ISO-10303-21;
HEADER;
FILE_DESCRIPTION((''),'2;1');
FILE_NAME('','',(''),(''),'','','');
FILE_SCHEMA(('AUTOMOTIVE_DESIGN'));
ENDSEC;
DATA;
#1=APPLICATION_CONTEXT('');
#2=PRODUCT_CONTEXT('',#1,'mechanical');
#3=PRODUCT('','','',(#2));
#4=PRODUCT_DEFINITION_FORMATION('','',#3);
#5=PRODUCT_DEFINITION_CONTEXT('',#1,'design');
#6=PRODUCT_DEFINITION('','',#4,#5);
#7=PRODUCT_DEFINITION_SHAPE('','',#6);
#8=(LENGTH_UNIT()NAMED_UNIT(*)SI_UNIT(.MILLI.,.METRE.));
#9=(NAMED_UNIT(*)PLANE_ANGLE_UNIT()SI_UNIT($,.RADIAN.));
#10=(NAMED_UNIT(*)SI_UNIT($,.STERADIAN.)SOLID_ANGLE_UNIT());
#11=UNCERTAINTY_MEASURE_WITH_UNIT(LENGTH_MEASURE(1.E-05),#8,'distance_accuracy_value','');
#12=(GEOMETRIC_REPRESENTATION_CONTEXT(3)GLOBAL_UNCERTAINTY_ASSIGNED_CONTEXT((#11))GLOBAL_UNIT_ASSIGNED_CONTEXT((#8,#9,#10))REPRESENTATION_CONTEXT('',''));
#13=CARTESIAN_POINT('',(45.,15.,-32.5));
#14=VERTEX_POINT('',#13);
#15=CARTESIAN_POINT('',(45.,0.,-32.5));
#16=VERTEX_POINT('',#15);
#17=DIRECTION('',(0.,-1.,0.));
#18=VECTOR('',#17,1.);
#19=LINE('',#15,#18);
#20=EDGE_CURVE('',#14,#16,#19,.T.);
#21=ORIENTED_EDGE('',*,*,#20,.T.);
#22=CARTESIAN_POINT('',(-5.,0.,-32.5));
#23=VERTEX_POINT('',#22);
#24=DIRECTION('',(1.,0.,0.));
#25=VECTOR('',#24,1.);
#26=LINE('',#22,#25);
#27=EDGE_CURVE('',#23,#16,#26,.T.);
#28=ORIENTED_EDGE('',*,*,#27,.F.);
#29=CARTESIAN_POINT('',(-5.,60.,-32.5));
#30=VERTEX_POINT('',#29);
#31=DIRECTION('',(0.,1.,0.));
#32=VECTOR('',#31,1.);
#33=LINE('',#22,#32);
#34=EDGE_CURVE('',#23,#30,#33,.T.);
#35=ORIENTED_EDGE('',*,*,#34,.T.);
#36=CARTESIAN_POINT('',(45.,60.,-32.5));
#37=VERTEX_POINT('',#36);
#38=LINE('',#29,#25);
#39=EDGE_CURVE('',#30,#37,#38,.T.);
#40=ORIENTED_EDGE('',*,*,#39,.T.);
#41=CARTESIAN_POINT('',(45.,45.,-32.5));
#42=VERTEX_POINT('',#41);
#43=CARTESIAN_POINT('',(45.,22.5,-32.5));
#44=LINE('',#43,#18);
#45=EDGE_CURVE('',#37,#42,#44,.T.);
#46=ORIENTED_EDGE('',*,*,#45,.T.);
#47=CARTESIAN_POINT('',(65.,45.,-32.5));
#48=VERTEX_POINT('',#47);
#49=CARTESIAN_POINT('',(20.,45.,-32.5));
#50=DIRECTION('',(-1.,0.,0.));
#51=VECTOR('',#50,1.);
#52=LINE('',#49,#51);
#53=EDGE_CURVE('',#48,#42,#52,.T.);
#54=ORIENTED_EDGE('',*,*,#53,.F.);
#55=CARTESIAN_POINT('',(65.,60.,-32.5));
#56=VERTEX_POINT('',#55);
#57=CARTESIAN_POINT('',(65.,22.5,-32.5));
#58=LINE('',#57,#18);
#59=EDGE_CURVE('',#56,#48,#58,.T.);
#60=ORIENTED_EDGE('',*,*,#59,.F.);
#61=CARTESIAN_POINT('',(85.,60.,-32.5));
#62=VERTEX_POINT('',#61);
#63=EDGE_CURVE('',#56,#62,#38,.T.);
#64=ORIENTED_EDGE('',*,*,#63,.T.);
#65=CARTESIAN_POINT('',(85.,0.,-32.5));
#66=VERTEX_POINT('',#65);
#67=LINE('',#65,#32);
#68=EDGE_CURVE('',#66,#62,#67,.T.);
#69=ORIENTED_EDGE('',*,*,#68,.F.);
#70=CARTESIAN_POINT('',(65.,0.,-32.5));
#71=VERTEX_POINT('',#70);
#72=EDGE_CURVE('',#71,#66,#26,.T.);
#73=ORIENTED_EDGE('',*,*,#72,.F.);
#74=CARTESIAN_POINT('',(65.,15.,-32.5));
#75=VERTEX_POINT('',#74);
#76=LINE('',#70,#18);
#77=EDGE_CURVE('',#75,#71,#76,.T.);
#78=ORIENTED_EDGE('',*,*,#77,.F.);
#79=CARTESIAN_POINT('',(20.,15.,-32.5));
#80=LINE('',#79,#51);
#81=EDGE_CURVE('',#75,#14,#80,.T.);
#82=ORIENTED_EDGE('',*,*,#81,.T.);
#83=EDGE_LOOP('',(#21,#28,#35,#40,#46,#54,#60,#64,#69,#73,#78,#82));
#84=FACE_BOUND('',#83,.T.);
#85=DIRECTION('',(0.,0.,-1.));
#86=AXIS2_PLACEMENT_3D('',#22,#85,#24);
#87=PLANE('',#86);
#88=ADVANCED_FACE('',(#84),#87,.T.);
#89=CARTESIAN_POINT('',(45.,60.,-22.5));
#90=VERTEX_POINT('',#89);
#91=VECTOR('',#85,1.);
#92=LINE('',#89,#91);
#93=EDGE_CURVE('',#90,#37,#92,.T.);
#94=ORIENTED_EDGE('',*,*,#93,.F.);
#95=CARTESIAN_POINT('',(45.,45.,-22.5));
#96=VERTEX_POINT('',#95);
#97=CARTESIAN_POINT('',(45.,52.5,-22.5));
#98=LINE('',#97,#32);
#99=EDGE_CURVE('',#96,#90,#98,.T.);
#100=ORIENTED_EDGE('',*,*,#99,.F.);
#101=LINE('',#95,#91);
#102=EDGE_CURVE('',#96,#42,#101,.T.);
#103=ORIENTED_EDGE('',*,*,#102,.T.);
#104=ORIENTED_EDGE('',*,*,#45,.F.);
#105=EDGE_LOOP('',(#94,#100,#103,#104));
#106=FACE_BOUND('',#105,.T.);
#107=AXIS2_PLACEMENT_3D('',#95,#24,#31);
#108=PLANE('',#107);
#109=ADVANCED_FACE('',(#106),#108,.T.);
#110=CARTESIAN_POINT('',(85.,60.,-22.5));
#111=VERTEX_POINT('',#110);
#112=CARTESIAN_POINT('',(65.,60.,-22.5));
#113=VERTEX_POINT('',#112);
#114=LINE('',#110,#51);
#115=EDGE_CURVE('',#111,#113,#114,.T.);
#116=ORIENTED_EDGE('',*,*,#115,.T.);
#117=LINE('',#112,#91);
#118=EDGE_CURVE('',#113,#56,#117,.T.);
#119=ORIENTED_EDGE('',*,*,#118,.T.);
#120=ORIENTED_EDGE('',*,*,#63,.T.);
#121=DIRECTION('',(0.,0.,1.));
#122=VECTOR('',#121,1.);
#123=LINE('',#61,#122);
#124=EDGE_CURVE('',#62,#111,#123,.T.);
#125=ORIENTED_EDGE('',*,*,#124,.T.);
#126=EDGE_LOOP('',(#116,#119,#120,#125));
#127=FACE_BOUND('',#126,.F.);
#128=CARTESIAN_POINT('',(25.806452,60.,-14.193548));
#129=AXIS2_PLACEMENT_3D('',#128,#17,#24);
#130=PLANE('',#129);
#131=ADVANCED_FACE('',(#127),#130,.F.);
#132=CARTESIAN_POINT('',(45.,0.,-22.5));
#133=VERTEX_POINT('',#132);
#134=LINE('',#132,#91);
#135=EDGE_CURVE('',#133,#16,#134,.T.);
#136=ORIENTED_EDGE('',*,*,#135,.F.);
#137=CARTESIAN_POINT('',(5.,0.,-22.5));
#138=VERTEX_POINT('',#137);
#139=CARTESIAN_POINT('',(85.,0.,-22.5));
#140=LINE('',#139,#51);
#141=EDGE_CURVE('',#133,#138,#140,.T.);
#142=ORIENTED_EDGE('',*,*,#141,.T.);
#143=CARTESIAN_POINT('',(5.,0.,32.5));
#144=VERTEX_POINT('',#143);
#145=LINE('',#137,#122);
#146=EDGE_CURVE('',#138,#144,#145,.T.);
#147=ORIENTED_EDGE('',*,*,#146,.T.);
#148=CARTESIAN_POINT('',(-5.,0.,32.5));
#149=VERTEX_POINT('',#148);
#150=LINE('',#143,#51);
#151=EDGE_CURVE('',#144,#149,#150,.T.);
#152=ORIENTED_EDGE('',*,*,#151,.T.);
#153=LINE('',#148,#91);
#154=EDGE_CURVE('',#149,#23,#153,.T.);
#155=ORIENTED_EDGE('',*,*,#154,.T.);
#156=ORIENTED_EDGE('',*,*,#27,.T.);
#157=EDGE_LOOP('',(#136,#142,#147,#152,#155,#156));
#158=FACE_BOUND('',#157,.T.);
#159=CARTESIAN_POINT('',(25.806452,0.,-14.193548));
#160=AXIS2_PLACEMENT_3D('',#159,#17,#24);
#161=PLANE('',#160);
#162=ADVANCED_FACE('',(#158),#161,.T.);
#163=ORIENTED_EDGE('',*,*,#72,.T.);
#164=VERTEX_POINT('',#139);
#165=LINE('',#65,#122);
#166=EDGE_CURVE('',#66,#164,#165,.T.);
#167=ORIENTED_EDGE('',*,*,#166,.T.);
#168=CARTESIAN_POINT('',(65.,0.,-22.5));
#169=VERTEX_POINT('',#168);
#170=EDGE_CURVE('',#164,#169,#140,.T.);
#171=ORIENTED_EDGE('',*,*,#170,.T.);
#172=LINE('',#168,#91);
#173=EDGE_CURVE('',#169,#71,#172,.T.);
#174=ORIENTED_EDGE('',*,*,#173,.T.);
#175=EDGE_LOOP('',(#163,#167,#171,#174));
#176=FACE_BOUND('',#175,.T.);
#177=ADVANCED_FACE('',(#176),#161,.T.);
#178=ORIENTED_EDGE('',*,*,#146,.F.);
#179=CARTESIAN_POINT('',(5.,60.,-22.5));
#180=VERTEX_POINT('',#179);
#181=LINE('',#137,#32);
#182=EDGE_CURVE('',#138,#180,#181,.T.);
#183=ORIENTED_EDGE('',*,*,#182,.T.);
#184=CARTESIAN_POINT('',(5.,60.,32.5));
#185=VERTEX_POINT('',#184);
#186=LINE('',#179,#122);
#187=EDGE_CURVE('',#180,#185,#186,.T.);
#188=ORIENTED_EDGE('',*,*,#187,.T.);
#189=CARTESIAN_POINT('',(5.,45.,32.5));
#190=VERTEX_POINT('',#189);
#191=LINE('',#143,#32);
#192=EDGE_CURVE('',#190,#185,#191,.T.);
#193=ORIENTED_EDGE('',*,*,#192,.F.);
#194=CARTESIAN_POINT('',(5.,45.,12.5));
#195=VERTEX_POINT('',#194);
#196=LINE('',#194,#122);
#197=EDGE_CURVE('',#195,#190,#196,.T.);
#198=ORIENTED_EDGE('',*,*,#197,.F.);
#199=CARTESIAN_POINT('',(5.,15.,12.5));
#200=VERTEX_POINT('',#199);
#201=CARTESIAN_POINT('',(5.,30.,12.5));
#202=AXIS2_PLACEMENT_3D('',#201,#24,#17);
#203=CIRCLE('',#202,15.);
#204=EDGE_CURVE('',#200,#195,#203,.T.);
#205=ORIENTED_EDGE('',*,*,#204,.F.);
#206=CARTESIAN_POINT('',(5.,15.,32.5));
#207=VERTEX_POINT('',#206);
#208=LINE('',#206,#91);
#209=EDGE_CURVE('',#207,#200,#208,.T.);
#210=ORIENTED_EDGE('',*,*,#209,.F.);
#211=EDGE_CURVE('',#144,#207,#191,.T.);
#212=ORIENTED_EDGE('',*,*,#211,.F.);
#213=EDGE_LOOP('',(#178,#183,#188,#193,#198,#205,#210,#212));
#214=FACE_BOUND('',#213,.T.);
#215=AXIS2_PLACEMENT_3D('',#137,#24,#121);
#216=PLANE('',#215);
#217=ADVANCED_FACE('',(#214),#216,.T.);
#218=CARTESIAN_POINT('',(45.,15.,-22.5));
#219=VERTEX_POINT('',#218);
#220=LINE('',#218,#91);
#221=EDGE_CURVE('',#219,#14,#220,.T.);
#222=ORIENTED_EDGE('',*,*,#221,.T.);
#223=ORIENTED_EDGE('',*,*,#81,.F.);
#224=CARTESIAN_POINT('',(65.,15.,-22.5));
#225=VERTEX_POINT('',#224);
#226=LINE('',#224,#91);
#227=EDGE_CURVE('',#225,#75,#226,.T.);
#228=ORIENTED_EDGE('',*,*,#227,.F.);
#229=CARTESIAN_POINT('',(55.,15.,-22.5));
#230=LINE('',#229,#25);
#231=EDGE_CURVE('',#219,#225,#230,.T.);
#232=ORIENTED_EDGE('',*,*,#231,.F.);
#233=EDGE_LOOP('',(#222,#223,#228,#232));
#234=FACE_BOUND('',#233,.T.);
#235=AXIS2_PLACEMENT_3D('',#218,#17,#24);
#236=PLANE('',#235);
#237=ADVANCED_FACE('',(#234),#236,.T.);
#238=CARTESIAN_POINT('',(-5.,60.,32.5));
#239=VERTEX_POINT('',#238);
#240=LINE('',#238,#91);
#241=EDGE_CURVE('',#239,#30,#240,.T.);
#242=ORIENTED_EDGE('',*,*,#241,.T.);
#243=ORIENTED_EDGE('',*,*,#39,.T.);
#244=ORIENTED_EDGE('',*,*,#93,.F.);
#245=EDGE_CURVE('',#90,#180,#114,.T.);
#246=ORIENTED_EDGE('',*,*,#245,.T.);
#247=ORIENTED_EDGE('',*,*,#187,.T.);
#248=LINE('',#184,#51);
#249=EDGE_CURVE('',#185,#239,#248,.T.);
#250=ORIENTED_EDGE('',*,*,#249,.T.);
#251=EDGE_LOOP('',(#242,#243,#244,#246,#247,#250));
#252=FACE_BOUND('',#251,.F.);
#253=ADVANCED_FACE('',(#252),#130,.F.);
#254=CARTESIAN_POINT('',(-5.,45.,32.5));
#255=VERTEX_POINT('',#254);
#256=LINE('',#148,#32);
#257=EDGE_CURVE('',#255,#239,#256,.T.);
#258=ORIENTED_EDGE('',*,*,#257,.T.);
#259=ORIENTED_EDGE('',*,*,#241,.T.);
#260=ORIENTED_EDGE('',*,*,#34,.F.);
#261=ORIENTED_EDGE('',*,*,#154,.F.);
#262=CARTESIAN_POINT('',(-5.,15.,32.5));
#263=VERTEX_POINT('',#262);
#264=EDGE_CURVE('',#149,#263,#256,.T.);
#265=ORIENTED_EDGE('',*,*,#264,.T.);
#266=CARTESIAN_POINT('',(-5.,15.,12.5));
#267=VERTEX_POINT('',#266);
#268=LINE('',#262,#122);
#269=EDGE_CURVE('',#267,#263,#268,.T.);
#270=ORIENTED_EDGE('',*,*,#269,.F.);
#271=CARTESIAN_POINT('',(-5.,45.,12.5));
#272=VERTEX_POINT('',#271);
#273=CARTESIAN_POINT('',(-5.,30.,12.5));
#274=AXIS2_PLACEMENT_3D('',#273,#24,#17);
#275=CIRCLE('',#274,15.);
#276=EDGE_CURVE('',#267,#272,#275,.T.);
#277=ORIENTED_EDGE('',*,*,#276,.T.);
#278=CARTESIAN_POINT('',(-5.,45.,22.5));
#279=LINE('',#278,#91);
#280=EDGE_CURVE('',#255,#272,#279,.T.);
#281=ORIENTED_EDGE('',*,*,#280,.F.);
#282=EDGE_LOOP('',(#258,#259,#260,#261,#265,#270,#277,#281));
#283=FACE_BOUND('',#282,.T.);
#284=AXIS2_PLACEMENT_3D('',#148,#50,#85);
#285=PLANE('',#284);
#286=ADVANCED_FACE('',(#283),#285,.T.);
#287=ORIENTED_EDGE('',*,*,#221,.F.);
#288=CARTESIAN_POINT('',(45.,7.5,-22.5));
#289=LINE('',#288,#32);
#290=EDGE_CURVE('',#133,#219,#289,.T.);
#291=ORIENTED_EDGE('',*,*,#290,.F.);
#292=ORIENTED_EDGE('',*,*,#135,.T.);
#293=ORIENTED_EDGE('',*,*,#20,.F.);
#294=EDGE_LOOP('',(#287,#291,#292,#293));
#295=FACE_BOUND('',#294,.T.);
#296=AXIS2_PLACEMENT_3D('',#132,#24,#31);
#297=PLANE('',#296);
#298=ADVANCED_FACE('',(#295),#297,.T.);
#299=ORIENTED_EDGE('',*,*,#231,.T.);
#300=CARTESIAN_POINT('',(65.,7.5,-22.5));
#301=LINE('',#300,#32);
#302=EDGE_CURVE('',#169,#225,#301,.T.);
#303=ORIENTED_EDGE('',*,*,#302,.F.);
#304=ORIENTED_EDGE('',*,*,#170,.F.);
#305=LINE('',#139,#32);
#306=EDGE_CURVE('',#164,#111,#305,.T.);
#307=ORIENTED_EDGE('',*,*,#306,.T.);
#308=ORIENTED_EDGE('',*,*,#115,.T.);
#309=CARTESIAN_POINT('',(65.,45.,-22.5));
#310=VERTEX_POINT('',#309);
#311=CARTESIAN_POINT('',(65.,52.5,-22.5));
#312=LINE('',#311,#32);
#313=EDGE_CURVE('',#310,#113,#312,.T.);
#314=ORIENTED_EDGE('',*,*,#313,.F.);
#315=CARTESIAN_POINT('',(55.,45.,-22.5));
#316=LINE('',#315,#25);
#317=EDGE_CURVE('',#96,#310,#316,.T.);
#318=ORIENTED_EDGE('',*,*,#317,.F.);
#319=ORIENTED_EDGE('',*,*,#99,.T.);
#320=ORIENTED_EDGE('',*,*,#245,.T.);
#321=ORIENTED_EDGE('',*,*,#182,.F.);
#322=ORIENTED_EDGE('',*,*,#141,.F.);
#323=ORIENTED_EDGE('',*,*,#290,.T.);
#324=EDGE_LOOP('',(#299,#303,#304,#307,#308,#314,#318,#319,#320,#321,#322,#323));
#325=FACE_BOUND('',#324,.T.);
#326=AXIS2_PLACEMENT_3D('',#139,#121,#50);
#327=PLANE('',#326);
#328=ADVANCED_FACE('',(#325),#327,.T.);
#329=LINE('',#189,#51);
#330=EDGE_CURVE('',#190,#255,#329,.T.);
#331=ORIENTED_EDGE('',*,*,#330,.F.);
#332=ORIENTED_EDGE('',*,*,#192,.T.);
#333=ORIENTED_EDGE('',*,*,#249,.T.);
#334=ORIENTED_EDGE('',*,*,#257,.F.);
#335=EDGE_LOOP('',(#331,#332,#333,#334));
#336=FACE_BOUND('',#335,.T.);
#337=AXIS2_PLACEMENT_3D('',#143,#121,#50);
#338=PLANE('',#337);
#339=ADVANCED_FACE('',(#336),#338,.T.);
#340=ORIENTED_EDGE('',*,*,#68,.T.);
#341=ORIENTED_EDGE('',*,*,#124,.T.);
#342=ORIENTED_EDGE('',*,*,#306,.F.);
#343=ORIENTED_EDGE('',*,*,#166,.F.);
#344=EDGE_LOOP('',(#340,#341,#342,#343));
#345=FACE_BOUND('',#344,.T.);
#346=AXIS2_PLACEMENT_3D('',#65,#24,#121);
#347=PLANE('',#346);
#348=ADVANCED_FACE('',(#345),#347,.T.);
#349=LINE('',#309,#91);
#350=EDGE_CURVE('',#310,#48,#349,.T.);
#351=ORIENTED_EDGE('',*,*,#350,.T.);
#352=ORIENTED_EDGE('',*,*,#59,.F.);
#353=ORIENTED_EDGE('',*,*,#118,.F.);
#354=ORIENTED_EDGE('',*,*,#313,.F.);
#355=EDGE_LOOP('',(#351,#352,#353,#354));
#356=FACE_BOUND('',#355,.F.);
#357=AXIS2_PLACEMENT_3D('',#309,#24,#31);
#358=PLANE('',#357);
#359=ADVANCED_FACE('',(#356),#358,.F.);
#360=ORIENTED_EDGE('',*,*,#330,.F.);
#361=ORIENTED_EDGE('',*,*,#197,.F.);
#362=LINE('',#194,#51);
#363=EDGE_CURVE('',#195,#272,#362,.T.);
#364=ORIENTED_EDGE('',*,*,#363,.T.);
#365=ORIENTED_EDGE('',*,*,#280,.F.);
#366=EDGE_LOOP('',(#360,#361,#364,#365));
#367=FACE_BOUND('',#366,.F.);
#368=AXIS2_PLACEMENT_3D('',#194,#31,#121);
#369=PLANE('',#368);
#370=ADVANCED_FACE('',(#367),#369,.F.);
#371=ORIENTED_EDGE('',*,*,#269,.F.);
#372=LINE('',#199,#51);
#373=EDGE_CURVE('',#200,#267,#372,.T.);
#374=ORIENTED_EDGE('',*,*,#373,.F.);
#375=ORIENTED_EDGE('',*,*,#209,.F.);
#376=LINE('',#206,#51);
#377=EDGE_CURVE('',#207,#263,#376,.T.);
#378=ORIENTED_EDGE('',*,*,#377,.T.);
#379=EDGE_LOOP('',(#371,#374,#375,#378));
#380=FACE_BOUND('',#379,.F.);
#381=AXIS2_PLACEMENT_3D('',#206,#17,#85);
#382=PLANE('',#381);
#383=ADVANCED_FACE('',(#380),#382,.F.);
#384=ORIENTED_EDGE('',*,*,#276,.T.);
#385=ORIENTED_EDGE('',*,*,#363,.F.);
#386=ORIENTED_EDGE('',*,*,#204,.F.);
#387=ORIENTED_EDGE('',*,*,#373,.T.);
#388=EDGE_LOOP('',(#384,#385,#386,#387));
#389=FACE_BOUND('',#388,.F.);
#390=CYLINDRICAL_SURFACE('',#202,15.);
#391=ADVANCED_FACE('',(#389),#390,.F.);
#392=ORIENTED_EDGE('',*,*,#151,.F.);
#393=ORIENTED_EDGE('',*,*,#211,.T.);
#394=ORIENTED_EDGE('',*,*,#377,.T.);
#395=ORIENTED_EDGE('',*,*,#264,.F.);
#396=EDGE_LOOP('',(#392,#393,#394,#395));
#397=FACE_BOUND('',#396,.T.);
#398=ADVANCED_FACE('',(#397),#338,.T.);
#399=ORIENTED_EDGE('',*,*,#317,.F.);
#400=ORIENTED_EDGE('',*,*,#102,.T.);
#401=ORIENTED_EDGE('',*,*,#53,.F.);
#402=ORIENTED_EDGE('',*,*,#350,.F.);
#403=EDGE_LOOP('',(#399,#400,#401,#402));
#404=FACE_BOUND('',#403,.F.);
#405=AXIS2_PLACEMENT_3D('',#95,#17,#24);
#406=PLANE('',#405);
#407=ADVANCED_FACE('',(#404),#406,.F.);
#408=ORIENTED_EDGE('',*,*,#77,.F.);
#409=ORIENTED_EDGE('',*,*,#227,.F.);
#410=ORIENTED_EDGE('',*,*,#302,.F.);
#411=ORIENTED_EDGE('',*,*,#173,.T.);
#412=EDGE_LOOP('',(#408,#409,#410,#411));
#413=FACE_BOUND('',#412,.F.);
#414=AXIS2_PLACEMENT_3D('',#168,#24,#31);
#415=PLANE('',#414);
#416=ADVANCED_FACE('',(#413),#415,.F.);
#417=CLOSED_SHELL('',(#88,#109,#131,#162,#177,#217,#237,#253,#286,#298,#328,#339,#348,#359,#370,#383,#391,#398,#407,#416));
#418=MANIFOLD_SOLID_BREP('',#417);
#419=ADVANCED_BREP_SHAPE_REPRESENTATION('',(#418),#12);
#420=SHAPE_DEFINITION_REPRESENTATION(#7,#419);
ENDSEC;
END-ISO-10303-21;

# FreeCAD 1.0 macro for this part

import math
import FreeCAD as App
import Part
import Sketcher

V = App.Vector
Q = App.Units.Quantity


def add_polygon(sketch, points):
    """Adds a closed chain of lines whose ends are joined by coincident constraints."""
    first, n = sketch.GeometryCount, len(points)
    for a, b in zip(points, points[1:] + points[:1]):
        sketch.addGeometry(Part.LineSegment(App.Vector(*a, 0), App.Vector(*b, 0)), False)
    for i in range(n):
        sketch.addConstraint(Sketcher.Constraint("Coincident", first + i, 2, first + (i + 1) % n, 1))

doc = App.newDocument("Part")
body = doc.addObject("PartDesign::Body", "Body")

# Sketch on XZ plane
sketch1 = body.newObject("Sketcher::SketchObject", "Sketch")
sketch1.AttachmentSupport = (doc.getObject("XZ_Plane"), [""])
sketch1.MapMode = "FlatFace"
add_polygon(sketch1, [(5, -22), (5, 32), (-5, 32), (-5, -32), (85, -32), (85, -22)])  # lines 0-5
sketch1.addConstraint([
    Sketcher.Constraint("Vertical", 0),
    Sketcher.Constraint("Horizontal", 1),
    Sketcher.Constraint("Vertical", 2),
    Sketcher.Constraint("Horizontal", 3),
    Sketcher.Constraint("Vertical", 4),
    Sketcher.Constraint("Horizontal", 5),
    Sketcher.Constraint("Symmetric", 0, 2, 2, 2, -1, 1),
    Sketcher.Constraint("Equal", 1, 4),
    Sketcher.Constraint("DistanceX", 1, 2, 1, 1, Q("10 mm")),
    Sketcher.Constraint("DistanceX", 3, 1, 3, 2, Q("90 mm")),
    Sketcher.Constraint("DistanceY", 0, 1, 0, 2, Q("55 mm")),
])
pad1 = body.newObject("PartDesign::Pad", "Pad")
pad1.Profile = sketch1
pad1.Length = 60
pad1.Reversed = True

# Sketch on XY plane
sketch2 = body.newObject("Sketcher::SketchObject", "Sketch001")
sketch2.AttachmentSupport = (doc.getObject("XY_Plane"), [""])
sketch2.MapMode = "FlatFace"
sketch2.AttachmentOffset = App.Placement(V(0, 0, -22.5), App.Rotation())
add_polygon(sketch2, [(45, 15), (45, 0), (65, 0), (65, 15)])  # lines 0-3
add_polygon(sketch2, [(45, 60), (45, 45), (65, 45), (65, 60)])  # lines 4-7
sketch2.addConstraint([
    Sketcher.Constraint("Vertical", 0),
    Sketcher.Constraint("Horizontal", 1),
    Sketcher.Constraint("Vertical", 2),
    Sketcher.Constraint("Horizontal", 3),
    Sketcher.Constraint("Vertical", 4),
    Sketcher.Constraint("Horizontal", 5),
    Sketcher.Constraint("Vertical", 6),
    Sketcher.Constraint("Horizontal", 7),
    Sketcher.Constraint("PointOnObject", 0, 2, -1),
    Sketcher.Constraint("Vertical", 3, 2, 4, 2),
    Sketcher.Constraint("Vertical", 2, 2, 5, 2),
    Sketcher.Constraint("Equal", 2, 4),
    Sketcher.Constraint("DistanceX", 1, 1, 1, 2, Q("20 mm")),
    Sketcher.Constraint("DistanceY", 0, 2, 0, 1, Q("15 mm")),
    Sketcher.Constraint("DistanceX", -1, 1, 0, 2, Q("45 mm")),
    Sketcher.Constraint("DistanceY", -1, 1, 4, 2, Q("45 mm")),
])
pocket1 = body.newObject("PartDesign::Pocket", "Pocket")
pocket1.Profile = sketch2
pocket1.Length = 25

# Sketch on YZ plane
sketch3 = body.newObject("Sketcher::SketchObject", "Sketch002")
sketch3.AttachmentSupport = (doc.getObject("YZ_Plane"), [""])
sketch3.MapMode = "FlatFace"
sketch3.AttachmentOffset = App.Placement(V(0, 0, 5), App.Rotation())
sketch3.addGeometry([
    Part.LineSegment(V(15, 32, 0), V(15, 12, 0)),
    Part.ArcOfCircle(Part.Circle(V(30, 12, 0), V(0, 0, 1), 15), math.radians(180), math.radians(360)),
    Part.LineSegment(V(45, 12, 0), V(45, 32, 0)),
    Part.LineSegment(V(45, 32, 0), V(15, 32, 0)),
], False)
sketch3.addConstraint([
    Sketcher.Constraint("Tangent", 0, 2, 1, 1),
    Sketcher.Constraint("Tangent", 1, 2, 2, 1),
    Sketcher.Constraint("Coincident", 2, 2, 3, 1),
    Sketcher.Constraint("Coincident", 3, 2, 0, 1),
    Sketcher.Constraint("Vertical", 0),
    Sketcher.Constraint("Vertical", 2),
    Sketcher.Constraint("Horizontal", 3),
    Sketcher.Constraint("Radius", 1, Q("15 mm")),
    Sketcher.Constraint("DistanceY", 0, 2, 0, 1, Q("20 mm")),
    Sketcher.Constraint("DistanceX", -1, 1, 1, 3, Q("30 mm")),
    Sketcher.Constraint("DistanceY", -1, 1, 1, 3, Q("12.5 mm")),
])
pocket2 = body.newObject("PartDesign::Pocket", "Pocket001")
pocket2.Profile = sketch3
pocket2.Length = 25

doc.recompute()
